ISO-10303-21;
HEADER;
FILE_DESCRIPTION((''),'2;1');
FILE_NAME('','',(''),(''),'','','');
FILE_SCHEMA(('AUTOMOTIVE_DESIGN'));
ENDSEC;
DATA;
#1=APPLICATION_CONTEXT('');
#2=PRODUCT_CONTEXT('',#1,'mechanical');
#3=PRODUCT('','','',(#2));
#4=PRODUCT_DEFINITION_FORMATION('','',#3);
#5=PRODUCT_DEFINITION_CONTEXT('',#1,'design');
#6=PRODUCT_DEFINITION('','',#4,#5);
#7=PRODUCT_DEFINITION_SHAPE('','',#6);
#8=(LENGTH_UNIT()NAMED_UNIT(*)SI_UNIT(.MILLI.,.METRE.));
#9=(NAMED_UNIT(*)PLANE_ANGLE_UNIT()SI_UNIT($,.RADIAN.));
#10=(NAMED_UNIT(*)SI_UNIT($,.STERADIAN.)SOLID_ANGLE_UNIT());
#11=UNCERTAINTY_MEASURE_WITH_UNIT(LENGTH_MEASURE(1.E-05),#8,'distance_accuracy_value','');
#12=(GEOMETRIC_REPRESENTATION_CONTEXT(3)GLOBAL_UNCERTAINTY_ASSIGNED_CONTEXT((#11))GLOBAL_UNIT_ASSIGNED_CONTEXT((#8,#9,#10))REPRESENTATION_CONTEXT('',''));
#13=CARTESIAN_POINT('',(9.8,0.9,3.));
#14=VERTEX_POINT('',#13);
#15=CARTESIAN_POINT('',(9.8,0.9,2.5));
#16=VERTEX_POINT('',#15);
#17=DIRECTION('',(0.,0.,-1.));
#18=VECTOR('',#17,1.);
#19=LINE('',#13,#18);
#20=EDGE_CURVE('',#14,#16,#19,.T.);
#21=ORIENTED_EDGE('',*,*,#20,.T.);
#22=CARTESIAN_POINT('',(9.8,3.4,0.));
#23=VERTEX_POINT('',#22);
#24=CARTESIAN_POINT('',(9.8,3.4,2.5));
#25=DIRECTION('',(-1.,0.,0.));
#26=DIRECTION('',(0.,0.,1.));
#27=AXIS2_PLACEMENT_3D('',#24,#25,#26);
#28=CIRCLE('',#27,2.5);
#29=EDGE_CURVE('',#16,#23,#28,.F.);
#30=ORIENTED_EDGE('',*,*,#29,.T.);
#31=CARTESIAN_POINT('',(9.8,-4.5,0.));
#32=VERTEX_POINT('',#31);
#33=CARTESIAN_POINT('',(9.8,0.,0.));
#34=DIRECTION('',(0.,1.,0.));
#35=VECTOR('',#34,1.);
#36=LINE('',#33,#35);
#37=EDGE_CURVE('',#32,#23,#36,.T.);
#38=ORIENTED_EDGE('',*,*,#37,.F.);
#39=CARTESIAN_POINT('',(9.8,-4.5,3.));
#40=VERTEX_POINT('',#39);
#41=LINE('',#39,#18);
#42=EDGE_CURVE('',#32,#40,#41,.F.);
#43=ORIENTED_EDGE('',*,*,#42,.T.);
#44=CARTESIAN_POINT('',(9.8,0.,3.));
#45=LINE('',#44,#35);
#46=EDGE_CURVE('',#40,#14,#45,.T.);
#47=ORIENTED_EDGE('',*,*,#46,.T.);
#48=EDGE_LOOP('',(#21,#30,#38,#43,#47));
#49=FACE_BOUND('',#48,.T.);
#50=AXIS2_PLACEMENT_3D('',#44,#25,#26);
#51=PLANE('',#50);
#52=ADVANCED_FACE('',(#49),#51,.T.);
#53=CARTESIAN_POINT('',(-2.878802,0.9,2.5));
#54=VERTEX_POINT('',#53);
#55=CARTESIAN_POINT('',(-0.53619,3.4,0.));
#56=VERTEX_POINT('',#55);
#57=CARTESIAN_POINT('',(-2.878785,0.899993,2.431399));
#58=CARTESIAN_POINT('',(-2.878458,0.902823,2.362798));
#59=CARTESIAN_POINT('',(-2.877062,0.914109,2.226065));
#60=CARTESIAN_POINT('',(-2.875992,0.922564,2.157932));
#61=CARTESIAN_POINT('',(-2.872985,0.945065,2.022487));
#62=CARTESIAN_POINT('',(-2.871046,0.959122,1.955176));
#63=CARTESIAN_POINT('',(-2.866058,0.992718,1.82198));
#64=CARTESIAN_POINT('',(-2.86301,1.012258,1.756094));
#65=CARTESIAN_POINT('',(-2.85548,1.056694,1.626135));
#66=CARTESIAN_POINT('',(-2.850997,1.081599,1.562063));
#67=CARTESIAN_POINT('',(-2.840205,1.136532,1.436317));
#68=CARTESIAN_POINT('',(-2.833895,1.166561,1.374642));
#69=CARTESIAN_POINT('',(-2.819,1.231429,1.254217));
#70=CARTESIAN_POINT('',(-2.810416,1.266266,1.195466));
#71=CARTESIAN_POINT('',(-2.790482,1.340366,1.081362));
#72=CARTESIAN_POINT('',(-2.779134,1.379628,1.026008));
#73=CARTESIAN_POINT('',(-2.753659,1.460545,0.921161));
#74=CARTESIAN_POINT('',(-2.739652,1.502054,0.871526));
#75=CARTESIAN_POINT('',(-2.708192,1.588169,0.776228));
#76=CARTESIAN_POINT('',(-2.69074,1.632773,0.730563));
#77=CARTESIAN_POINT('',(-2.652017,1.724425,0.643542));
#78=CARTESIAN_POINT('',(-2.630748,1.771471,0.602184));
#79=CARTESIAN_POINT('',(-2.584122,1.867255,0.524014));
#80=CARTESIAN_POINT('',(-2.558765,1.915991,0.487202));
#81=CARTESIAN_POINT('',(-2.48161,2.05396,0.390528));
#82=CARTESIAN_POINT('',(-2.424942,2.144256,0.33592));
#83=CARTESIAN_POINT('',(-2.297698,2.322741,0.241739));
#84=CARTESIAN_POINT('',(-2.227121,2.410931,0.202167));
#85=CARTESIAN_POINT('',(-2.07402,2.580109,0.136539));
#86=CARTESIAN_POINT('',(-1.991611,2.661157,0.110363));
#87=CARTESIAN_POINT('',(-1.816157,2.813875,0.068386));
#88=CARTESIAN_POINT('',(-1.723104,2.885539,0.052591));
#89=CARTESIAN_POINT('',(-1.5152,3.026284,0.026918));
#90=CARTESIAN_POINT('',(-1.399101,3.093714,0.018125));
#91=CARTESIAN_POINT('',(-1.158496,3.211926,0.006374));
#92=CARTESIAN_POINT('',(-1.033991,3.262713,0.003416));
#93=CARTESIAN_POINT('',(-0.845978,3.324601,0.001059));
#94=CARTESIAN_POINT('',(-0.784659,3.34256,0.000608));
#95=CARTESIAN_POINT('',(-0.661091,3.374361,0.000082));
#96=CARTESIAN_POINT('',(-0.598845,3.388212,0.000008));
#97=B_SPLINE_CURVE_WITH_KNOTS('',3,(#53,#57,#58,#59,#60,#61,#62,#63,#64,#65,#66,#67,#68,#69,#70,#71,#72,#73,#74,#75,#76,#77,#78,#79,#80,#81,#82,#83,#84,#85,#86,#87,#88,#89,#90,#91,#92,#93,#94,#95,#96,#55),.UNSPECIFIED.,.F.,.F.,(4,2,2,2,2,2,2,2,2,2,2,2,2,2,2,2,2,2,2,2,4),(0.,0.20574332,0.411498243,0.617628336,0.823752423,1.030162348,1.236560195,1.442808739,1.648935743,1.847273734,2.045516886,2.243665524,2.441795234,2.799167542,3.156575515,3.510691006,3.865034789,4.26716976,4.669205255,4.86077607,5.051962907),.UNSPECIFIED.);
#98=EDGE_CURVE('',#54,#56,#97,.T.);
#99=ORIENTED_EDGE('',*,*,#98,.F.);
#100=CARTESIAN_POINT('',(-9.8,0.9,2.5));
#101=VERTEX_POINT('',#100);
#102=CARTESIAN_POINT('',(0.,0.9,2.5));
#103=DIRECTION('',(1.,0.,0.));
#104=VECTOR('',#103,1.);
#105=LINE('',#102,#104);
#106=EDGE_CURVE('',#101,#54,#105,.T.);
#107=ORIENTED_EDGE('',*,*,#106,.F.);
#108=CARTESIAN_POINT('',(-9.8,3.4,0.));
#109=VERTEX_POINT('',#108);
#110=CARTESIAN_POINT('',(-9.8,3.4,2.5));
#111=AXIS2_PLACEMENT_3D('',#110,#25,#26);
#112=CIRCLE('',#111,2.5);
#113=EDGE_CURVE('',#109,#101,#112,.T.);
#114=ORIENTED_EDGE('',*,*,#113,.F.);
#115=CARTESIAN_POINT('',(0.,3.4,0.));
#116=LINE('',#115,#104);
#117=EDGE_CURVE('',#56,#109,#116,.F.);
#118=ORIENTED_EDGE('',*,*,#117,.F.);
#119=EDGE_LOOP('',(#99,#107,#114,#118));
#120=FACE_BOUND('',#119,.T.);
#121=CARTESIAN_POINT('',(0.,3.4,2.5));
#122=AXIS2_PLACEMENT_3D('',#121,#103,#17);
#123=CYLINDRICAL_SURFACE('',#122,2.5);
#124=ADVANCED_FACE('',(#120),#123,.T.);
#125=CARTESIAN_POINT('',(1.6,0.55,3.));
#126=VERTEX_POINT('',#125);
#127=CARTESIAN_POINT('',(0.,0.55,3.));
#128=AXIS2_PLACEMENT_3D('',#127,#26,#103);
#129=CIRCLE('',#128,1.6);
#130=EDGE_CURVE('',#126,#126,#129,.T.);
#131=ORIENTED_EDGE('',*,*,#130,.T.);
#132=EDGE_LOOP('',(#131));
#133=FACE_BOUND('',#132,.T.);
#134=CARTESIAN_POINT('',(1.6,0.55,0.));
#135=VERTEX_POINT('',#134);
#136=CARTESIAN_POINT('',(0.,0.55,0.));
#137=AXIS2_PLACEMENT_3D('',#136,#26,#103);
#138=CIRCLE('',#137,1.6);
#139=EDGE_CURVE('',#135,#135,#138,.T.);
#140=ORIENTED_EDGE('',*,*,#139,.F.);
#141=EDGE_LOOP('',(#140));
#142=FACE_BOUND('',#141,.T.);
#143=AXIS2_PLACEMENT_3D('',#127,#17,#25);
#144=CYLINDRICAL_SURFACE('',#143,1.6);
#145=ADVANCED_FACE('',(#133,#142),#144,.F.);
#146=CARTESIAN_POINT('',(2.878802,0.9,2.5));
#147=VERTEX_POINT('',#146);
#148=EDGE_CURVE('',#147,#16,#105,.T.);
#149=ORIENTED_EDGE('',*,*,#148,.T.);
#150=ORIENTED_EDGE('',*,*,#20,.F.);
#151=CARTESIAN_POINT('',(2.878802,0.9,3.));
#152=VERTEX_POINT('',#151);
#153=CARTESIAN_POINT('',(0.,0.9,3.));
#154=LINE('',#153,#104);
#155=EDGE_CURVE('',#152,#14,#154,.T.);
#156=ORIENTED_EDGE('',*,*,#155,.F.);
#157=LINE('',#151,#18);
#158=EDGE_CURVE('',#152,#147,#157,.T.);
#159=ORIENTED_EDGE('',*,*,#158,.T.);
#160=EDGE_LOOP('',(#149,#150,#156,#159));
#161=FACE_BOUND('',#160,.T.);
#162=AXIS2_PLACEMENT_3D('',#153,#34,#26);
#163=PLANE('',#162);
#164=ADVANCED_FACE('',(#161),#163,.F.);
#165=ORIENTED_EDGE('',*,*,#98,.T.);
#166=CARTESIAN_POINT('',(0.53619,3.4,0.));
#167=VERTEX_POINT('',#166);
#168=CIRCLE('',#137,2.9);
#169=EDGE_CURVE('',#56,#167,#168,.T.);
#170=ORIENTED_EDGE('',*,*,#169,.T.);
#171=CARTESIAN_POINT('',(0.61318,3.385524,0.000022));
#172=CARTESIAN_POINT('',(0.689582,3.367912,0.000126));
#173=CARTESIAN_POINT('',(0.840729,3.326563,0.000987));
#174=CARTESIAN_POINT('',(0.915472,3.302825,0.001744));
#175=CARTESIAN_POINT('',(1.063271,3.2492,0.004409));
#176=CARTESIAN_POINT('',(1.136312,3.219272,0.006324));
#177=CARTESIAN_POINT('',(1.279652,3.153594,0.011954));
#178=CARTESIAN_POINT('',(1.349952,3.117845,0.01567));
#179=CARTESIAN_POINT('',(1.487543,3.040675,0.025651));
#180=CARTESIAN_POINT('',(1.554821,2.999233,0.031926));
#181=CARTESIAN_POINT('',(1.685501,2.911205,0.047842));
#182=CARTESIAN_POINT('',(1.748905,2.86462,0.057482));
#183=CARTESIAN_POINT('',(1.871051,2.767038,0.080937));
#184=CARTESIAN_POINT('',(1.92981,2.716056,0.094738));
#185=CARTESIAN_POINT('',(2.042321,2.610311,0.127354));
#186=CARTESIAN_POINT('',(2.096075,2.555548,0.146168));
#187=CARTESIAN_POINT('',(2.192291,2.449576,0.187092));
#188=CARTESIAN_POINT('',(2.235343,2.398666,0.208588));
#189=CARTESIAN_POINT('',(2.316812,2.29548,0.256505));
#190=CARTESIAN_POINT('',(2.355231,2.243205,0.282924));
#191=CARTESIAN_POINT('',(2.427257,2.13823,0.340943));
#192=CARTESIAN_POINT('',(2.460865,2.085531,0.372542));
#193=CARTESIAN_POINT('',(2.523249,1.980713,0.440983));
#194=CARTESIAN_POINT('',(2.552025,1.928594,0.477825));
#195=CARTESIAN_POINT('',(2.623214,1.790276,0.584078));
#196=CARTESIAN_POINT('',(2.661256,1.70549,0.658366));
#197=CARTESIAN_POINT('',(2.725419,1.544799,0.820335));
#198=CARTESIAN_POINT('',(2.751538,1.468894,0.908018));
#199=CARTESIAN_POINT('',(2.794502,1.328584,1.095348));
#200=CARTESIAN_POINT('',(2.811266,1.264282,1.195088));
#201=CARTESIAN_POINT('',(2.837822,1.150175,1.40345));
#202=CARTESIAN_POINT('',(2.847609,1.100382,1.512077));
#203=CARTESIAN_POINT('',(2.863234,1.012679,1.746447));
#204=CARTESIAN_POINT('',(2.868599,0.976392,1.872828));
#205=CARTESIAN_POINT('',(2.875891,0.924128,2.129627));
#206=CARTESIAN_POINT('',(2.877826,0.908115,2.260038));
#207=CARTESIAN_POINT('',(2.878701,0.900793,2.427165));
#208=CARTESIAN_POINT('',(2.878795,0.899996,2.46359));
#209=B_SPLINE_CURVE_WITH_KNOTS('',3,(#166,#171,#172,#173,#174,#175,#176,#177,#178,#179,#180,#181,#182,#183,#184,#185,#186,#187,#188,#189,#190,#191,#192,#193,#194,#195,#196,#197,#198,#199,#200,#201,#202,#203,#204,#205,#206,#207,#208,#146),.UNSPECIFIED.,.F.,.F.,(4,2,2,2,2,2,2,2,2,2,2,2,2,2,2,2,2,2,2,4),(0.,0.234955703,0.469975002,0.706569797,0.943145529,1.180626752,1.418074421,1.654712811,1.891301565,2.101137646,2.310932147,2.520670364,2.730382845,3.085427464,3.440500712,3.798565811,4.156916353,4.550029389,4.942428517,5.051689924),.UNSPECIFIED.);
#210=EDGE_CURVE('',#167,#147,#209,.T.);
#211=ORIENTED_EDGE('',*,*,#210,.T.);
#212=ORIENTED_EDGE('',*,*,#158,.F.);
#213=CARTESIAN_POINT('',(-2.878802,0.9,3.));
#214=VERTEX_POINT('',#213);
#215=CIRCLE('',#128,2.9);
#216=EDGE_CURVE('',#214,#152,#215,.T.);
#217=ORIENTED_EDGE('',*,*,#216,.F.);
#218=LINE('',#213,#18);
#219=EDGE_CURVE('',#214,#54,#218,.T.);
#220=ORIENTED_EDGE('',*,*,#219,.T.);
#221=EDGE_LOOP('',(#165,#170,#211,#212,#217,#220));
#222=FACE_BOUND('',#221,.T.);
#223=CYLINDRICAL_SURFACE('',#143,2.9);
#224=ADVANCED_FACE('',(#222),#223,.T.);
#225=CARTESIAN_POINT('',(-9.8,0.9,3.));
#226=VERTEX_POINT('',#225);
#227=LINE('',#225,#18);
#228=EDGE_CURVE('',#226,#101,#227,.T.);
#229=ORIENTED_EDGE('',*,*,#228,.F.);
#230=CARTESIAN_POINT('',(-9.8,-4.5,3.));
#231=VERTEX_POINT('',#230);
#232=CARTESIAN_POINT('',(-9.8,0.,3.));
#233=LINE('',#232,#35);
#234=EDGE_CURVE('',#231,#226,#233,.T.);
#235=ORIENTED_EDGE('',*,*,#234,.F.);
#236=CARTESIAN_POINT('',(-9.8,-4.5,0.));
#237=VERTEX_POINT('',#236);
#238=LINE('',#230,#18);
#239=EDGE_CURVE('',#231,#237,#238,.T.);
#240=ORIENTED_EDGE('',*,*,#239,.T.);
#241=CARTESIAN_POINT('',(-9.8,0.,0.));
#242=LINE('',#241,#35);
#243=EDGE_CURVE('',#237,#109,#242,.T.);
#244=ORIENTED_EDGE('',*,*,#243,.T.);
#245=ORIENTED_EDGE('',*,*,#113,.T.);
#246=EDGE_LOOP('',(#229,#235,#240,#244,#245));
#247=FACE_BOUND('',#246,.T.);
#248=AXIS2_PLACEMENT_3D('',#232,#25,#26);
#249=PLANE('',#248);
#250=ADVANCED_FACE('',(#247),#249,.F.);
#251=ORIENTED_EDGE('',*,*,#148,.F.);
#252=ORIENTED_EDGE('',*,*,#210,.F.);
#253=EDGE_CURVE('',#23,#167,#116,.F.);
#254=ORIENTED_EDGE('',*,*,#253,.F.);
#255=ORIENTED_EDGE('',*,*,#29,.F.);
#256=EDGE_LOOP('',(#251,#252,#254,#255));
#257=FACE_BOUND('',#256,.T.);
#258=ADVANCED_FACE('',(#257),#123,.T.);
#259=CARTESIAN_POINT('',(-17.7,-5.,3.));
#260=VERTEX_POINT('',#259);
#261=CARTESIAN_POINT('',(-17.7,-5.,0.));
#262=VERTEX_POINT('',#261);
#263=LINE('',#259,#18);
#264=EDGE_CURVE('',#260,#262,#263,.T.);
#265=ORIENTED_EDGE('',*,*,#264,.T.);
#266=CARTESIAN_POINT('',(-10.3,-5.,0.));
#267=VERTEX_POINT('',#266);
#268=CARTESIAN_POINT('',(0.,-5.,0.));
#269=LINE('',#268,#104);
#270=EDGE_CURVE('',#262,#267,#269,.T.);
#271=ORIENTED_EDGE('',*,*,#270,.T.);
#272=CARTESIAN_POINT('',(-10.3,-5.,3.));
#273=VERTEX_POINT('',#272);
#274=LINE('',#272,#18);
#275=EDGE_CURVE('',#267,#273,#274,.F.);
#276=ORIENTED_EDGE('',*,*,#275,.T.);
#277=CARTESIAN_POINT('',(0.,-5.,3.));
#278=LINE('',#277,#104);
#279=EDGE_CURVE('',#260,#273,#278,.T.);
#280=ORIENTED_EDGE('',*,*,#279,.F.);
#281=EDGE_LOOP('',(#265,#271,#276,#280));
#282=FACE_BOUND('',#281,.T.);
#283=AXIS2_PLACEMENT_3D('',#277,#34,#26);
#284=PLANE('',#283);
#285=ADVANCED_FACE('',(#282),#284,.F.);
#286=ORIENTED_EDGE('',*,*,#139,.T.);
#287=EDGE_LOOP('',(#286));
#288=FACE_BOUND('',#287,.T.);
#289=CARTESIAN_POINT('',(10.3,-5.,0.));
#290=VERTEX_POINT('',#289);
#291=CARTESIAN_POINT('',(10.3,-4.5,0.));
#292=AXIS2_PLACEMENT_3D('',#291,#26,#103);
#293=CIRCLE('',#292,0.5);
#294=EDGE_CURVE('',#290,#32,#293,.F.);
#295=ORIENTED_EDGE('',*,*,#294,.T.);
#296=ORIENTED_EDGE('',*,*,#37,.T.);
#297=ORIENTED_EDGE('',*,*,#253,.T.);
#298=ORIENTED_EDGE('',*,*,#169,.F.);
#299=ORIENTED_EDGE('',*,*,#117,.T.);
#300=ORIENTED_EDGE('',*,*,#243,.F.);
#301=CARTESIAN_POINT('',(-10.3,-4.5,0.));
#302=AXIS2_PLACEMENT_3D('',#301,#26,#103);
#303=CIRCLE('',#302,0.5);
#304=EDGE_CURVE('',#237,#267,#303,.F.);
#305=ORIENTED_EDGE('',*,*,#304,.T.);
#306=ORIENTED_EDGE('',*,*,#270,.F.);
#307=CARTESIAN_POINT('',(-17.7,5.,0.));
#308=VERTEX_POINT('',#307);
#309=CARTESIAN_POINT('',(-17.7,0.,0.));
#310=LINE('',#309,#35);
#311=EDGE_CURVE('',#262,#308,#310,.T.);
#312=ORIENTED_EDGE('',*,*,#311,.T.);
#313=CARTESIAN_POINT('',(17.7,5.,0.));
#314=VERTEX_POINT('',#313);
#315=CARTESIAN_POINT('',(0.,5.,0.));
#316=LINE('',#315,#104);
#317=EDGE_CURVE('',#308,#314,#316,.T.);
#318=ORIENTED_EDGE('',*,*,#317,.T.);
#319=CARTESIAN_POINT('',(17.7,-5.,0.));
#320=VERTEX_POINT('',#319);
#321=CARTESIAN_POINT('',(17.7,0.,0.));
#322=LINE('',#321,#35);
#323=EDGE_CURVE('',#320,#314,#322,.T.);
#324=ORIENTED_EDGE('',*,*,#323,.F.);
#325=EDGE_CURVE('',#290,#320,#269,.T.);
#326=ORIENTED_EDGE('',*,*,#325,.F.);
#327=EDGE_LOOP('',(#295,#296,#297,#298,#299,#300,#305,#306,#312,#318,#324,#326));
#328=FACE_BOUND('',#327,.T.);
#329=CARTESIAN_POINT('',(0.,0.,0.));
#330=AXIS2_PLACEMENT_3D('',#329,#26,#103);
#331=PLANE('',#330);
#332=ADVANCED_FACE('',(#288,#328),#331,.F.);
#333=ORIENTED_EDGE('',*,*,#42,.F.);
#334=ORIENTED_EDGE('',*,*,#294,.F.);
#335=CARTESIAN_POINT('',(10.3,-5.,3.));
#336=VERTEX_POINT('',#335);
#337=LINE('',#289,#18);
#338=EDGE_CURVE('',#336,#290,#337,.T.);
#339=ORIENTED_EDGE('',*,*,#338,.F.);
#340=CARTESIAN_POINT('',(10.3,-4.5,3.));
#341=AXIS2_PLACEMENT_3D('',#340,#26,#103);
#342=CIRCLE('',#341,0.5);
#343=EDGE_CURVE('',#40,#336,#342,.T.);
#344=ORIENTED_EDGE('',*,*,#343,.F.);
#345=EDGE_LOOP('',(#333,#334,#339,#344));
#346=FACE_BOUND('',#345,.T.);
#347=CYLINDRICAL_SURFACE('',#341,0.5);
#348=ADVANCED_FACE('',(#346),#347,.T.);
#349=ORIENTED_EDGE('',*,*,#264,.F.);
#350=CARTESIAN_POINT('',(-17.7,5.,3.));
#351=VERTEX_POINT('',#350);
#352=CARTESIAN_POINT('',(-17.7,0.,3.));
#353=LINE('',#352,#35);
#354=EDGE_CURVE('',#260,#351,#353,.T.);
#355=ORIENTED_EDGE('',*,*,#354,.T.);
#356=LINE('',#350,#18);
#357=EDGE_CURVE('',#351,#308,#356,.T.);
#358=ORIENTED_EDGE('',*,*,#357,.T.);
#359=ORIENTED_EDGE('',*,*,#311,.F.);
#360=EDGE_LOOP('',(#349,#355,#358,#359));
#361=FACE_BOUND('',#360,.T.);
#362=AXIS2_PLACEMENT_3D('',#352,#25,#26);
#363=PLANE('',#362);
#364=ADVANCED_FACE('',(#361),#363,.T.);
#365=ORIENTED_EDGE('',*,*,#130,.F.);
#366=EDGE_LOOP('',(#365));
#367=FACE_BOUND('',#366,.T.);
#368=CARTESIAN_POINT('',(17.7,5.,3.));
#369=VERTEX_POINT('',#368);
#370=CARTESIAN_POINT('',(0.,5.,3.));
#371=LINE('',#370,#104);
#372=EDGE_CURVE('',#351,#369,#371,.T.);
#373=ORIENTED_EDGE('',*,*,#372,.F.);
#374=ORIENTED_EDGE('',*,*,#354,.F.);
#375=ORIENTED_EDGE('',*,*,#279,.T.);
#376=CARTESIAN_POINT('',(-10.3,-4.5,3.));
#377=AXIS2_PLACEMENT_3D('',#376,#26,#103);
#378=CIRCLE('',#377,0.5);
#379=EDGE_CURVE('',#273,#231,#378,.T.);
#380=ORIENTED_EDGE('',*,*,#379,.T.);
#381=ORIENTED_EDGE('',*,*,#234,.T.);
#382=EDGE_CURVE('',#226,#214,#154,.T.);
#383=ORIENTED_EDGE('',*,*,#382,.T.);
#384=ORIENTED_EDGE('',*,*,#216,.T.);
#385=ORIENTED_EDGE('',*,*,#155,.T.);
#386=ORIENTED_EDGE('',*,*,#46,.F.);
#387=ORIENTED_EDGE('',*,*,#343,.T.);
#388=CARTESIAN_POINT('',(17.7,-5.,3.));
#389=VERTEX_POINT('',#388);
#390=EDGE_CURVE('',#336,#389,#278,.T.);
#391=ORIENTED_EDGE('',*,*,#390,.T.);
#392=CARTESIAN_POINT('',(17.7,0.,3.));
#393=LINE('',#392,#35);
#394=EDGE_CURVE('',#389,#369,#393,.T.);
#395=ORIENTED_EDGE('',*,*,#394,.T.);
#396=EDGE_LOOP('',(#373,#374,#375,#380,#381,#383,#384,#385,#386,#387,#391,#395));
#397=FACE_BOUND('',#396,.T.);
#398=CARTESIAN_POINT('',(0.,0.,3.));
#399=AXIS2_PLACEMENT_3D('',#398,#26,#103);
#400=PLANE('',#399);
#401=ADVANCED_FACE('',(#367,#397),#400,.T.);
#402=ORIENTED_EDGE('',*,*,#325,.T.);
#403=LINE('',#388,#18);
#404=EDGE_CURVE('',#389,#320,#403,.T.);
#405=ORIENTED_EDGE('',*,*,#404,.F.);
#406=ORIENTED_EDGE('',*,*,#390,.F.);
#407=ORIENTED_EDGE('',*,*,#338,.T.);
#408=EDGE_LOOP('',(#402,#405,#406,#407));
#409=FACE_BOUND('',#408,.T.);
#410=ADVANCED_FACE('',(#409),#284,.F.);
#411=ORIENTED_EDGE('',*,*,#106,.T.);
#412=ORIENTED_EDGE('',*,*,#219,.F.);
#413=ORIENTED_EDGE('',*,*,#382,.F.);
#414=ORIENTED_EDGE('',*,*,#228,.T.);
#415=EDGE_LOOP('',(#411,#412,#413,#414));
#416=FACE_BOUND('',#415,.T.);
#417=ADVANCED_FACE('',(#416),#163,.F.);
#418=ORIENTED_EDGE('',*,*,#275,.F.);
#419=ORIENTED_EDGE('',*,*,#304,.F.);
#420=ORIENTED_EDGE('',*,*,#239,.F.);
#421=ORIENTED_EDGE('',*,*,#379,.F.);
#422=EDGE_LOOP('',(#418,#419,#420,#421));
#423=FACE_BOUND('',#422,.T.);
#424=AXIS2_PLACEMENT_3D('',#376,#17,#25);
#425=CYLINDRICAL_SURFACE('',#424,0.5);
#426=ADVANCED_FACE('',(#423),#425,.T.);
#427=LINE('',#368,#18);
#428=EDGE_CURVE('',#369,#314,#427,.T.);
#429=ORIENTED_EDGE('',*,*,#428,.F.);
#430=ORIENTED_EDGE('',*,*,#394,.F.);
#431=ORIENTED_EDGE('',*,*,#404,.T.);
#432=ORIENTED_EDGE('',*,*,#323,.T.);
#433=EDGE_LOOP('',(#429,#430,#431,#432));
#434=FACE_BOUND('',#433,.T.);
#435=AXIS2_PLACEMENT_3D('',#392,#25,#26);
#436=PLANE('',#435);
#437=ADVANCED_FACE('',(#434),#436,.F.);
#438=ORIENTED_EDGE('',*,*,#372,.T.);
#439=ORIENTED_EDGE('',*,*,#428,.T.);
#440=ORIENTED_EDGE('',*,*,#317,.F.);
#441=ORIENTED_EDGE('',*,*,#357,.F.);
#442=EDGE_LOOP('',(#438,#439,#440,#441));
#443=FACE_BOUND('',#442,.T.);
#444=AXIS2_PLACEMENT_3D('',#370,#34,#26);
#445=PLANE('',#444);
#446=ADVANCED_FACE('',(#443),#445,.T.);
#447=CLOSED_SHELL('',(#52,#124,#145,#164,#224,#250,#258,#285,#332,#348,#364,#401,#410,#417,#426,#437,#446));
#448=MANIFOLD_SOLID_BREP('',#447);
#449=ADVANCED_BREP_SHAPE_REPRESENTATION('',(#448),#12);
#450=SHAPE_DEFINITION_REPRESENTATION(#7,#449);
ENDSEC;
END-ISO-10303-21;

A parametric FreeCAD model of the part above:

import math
import FreeCAD as App
import Part
import Sketcher
Q = App.Units.Quantity


def edges_at(feature, points):
    """Names of the edges that pass closest to the given points."""
    edges = feature.Shape.Edges
    near = lambda p: min(range(len(edges)), key=lambda i: edges[i].distToShape(Part.Vertex(*p))[0])
    return sorted({f"Edge{near(p) + 1}" for p in points})

doc = App.newDocument("Part")
body = doc.addObject("PartDesign::Body", "Body")

sketch1 = doc.addObject("Sketcher::SketchObject", "Sketch")
body.addObject(sketch1)
sketch1.AttachmentSupport = (doc.XY_Plane, [""])
sketch1.MapMode = "FlatFace"
sketch1.addGeometry([
    Part.LineSegment(App.Vector(9.8, 0.9, 0), App.Vector(9.8, -5, 0)),
    Part.LineSegment(App.Vector(9.8, -5, 0), App.Vector(17.7, -5, 0)),
    Part.LineSegment(App.Vector(17.7, -5, 0), App.Vector(17.7, 5, 0)),
    Part.LineSegment(App.Vector(17.7, 5, 0), App.Vector(-17.7, 5, 0)),
    Part.LineSegment(App.Vector(-17.7, 5, 0), App.Vector(-17.7, -5, 0)),
    Part.LineSegment(App.Vector(-17.7, -5, 0), App.Vector(-9.8, -5, 0)),
    Part.LineSegment(App.Vector(-9.8, -5, 0), App.Vector(-9.8, 0.9, 0)),
    Part.LineSegment(App.Vector(-9.8, 0.9, 0), App.Vector(-2.878802, 0.9, 0)),
    Part.ArcOfCircle(Part.Circle(App.Vector(0, 0.55, 0), App.Vector(0, 0, 1), 2.9), math.radians(173.068094), math.radians(366.931906)),
    Part.LineSegment(App.Vector(2.878802, 0.9, 0), App.Vector(9.8, 0.9, 0)),
    Part.Circle(App.Vector(0, 0.55, 0), App.Vector(0, 0, 1), 1.6),
], False)
sketch1.addConstraint([
    Sketcher.Constraint("Coincident", 0, 2, 1, 1),
    Sketcher.Constraint("Coincident", 1, 2, 2, 1),
    Sketcher.Constraint("Coincident", 2, 2, 3, 1),
    Sketcher.Constraint("Coincident", 3, 2, 4, 1),
    Sketcher.Constraint("Coincident", 4, 2, 5, 1),
    Sketcher.Constraint("Coincident", 5, 2, 6, 1),
    Sketcher.Constraint("Coincident", 6, 2, 7, 1),
    Sketcher.Constraint("Coincident", 7, 2, 8, 1),
    Sketcher.Constraint("Coincident", 8, 2, 9, 1),
    Sketcher.Constraint("Coincident", 9, 2, 0, 1),
    Sketcher.Constraint("Vertical", 0),
    Sketcher.Constraint("Horizontal", 1),
    Sketcher.Constraint("Vertical", 2),
    Sketcher.Constraint("Horizontal", 3),
    Sketcher.Constraint("Vertical", 4),
    Sketcher.Constraint("Horizontal", 5),
    Sketcher.Constraint("Vertical", 6),
    Sketcher.Constraint("Horizontal", 7),
    Sketcher.Constraint("Horizontal", 9),
    Sketcher.Constraint("Coincident", 10, 3, 8, 3),
    Sketcher.Constraint("Symmetric", 1, 2, 3, 2, -1, 1),
    Sketcher.Constraint("Symmetric", 0, 2, 5, 2, -2),
    Sketcher.Constraint("Symmetric", 7, 2, 8, 2, -2),
    Sketcher.Constraint("Diameter", 10, Q("3.2 mm")),
    Sketcher.Constraint("Radius", 8, Q("2.9 mm")),
    Sketcher.Constraint("DistanceY", 2, 1, 2, 2, Q("10 mm")),
    Sketcher.Constraint("DistanceX", 1, 1, 1, 2, Q("7.9 mm")),
    Sketcher.Constraint("DistanceX", 3, 2, 3, 1, Q("35.4 mm")),
    Sketcher.Constraint("DistanceY", 0, 2, 0, 1, Q("5.9 mm")),
    Sketcher.Constraint("DistanceY", -1, 1, 8, 3, Q("0.55 mm")),
])
pad1 = doc.addObject("PartDesign::Pad", "Pad")
body.addObject(pad1)
pad1.Profile = sketch1
pad1.Length = 3
doc.recompute()

fillet = doc.addObject("PartDesign::Fillet", "Fillet")
body.addObject(fillet)
fillet.Base = (pad1, edges_at(pad1, [(-6.339, 0.9, 0), (6.339, 0.9, 0)]))
fillet.Radius = 2.5
doc.recompute()

fillet2 = doc.addObject("PartDesign::Fillet", "Fillet001")
body.addObject(fillet2)
fillet2.Base = (fillet, edges_at(fillet, [(-9.8, -5, 1.5), (9.8, -5, 1.5)]))
fillet2.Radius = 0.5

doc.recompute()
